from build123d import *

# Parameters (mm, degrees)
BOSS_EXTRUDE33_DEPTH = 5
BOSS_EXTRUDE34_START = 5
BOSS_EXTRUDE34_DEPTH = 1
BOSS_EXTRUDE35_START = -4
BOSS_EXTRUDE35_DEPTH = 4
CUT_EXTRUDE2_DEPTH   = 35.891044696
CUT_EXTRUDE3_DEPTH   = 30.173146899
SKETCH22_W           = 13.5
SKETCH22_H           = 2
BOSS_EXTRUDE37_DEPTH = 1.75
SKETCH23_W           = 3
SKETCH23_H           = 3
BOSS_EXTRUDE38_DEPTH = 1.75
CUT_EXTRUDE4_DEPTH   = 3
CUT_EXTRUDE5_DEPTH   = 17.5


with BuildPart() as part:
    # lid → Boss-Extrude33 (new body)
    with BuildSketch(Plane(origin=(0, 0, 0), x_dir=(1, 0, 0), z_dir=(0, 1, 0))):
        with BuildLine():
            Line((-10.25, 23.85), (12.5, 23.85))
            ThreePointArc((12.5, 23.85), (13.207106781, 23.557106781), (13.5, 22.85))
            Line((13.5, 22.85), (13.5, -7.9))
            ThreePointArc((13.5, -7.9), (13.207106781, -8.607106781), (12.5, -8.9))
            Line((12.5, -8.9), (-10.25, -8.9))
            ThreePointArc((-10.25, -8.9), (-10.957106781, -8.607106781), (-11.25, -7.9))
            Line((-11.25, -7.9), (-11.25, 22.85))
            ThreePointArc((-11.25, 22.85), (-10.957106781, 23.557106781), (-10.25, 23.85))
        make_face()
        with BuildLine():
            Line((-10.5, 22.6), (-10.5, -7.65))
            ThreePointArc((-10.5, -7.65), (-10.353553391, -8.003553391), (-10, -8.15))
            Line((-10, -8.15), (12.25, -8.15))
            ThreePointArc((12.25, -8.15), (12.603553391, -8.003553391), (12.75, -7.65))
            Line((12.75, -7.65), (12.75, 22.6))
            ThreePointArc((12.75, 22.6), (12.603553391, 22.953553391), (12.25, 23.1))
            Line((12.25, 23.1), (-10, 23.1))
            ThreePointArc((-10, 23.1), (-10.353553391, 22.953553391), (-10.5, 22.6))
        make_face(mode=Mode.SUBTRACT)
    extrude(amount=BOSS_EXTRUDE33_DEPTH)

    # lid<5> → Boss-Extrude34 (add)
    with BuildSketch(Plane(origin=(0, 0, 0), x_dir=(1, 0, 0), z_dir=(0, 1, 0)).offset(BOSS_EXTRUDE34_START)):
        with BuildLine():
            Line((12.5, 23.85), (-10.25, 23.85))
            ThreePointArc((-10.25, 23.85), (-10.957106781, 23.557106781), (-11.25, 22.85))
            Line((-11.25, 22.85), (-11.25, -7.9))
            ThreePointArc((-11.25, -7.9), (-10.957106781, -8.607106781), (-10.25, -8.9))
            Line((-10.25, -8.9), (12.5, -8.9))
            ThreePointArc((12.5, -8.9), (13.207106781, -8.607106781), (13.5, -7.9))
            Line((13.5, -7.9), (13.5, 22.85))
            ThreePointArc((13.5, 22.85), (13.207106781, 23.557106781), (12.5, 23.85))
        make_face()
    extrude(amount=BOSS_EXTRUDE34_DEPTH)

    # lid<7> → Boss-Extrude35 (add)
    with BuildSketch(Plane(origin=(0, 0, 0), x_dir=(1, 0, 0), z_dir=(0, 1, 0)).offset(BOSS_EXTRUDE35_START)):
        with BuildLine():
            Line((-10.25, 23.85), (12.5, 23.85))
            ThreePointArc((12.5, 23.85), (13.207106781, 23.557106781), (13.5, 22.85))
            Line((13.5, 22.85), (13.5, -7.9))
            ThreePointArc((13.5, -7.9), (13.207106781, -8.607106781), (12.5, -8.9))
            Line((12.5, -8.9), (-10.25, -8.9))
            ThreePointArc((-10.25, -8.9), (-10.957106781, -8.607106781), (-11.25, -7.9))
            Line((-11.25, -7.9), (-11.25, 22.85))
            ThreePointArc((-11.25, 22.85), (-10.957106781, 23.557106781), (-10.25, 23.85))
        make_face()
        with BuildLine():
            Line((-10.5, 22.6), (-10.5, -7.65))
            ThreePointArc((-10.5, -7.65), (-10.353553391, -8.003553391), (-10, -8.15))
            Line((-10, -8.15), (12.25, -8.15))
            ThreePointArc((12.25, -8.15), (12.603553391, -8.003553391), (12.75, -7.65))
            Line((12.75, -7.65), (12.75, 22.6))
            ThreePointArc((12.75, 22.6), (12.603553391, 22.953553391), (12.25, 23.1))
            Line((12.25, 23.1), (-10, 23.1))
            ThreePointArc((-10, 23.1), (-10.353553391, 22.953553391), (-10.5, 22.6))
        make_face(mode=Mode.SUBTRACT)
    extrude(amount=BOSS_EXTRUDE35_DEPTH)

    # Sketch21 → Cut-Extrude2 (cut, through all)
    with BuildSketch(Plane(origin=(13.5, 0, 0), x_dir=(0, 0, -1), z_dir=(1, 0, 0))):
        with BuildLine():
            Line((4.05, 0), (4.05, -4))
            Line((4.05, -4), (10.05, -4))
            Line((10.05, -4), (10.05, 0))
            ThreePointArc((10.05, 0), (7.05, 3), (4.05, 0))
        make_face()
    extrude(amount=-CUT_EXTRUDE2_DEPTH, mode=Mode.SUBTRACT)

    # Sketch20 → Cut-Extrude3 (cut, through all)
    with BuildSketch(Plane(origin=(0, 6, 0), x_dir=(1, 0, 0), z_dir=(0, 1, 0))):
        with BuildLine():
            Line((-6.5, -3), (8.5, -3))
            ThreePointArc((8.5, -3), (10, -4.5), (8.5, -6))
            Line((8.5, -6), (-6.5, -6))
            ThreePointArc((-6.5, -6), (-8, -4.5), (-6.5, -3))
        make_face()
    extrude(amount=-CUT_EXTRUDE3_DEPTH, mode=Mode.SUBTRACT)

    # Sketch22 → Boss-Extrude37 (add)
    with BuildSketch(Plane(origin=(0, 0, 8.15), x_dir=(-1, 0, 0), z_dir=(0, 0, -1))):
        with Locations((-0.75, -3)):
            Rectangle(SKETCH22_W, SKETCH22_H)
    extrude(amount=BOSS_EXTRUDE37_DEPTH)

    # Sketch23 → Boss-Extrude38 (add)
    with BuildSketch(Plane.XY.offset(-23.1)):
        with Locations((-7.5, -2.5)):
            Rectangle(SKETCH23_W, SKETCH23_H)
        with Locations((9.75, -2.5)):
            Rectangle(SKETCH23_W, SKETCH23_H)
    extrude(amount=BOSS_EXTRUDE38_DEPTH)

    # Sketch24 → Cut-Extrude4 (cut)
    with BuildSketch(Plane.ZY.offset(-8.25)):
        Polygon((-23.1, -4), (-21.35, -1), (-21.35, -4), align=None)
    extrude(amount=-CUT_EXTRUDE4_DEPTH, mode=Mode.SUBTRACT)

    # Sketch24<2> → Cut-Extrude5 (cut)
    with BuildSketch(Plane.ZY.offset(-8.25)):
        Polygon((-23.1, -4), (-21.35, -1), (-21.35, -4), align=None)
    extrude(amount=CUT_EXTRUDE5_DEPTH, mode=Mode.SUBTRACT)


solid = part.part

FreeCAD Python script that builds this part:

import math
import FreeCAD as App
import Part
import Sketcher

V = App.Vector
Q = App.Units.Quantity

doc = App.newDocument("Part")
body = doc.addObject("PartDesign::Body", "Body")

# Sketch on XZ plane
sketch1 = body.newObject("Sketcher::SketchObject", "Sketch")
sketch1.AttachmentSupport = (doc.getObject("XZ_Plane"), [""])
sketch1.MapMode = "FlatFace"
sketch1.addGeometry([
    Part.LineSegment(V(12.5, -23.85, 0), V(-10.25, -23.85, 0)),  # 0
    Part.ArcOfCircle(Part.Circle(V(-10.25, -22.85, 0), V(0, 0, 1), 1), math.radians(-180), math.radians(-90)),  # 1
    Part.LineSegment(V(-11.25, -22.85, 0), V(-11.25, 7.9, 0)),  # 2
    Part.ArcOfCircle(Part.Circle(V(-10.25, 7.9, 0), V(0, 0, 1), 1), math.radians(90), math.radians(180)),  # 3
    Part.LineSegment(V(-10.25, 8.9, 0), V(12.5, 8.9, 0)),  # 4
    Part.ArcOfCircle(Part.Circle(V(12.5, 7.9, 0), V(0, 0, 1), 1), math.radians(0), math.radians(90)),  # 5
    Part.LineSegment(V(13.5, 7.9, 0), V(13.5, -22.85, 0)),  # 6
    Part.ArcOfCircle(Part.Circle(V(12.5, -22.85, 0), V(0, 0, 1), 1), math.radians(-90), math.radians(0)),  # 7
    Part.ArcOfCircle(Part.Circle(V(-10, -22.6, 0), V(0, 0, 1), 0.5), math.radians(180), math.radians(270)),  # 8
    Part.LineSegment(V(-10, -23.1, 0), V(12.25, -23.1, 0)),  # 9
    Part.ArcOfCircle(Part.Circle(V(12.25, -22.6, 0), V(0, 0, 1), 0.5), math.radians(-90), math.radians(0)),  # 10
    Part.LineSegment(V(12.75, -22.6, 0), V(12.75, 7.65, 0)),  # 11
    Part.ArcOfCircle(Part.Circle(V(12.25, 7.65, 0), V(0, 0, 1), 0.5), math.radians(0), math.radians(90)),  # 12
    Part.LineSegment(V(12.25, 8.15, 0), V(-10, 8.15, 0)),  # 13
    Part.ArcOfCircle(Part.Circle(V(-10, 7.65, 0), V(0, 0, 1), 0.5), math.radians(90), math.radians(180)),  # 14
    Part.LineSegment(V(-10.5, 7.65, 0), V(-10.5, -22.6, 0)),  # 15
], False)
sketch1.addConstraint([
    Sketcher.Constraint("Tangent", 0, 2, 1, 2),
    Sketcher.Constraint("Tangent", 1, 1, 2, 1),
    Sketcher.Constraint("Tangent", 2, 2, 3, 2),
    Sketcher.Constraint("Tangent", 3, 1, 4, 1),
    Sketcher.Constraint("Tangent", 4, 2, 5, 2),
    Sketcher.Constraint("Tangent", 5, 1, 6, 1),
    Sketcher.Constraint("Tangent", 6, 2, 7, 2),
    Sketcher.Constraint("Tangent", 7, 1, 0, 1),
    Sketcher.Constraint("Tangent", 8, 2, 9, 1),
    Sketcher.Constraint("Tangent", 9, 2, 10, 1),
    Sketcher.Constraint("Tangent", 10, 2, 11, 1),
    Sketcher.Constraint("Tangent", 11, 2, 12, 1),
    Sketcher.Constraint("Tangent", 12, 2, 13, 1),
    Sketcher.Constraint("Tangent", 13, 2, 14, 1),
    Sketcher.Constraint("Tangent", 14, 2, 15, 1),
    Sketcher.Constraint("Tangent", 15, 2, 8, 1),
    Sketcher.Constraint("Horizontal", 0),
    Sketcher.Constraint("Vertical", 2),
    Sketcher.Constraint("Horizontal", 4),
    Sketcher.Constraint("Vertical", 6),
    Sketcher.Constraint("Horizontal", 9),
    Sketcher.Constraint("Vertical", 11),
    Sketcher.Constraint("Horizontal", 13),
    Sketcher.Constraint("Vertical", 15),
    Sketcher.Constraint("Equal", 1, 3),
    Sketcher.Constraint("Equal", 3, 5),
    Sketcher.Constraint("Equal", 5, 7),
    Sketcher.Constraint("Equal", 8, 10),
    Sketcher.Constraint("Equal", 10, 12),
    Sketcher.Constraint("Equal", 12, 14),
    Sketcher.Constraint("Radius", 1, Q("1 mm")),
    Sketcher.Constraint("Radius", 8, Q("0.5 mm")),
    Sketcher.Constraint("DistanceX", 8, 3, -1, 1, Q("10 mm")),
    Sketcher.Constraint("DistanceX", 0, 2, 0, 1, Q("22.75 mm")),
    Sketcher.Constraint("DistanceX", 9, 1, 9, 2, Q("22.25 mm")),
    Sketcher.Constraint("DistanceY", 2, 1, 2, 2, Q("30.75 mm")),
    Sketcher.Constraint("DistanceY", 11, 1, 11, 2, Q("30.25 mm")),
    Sketcher.Constraint("DistanceY", -1, 1, 3, 3, Q("7.9 mm")),
    Sketcher.Constraint("DistanceX", -1, 1, 5, 3, Q("12.5 mm")),
    Sketcher.Constraint("DistanceY", 8, 3, -1, 1, Q("22.6 mm")),
])
pad1 = body.newObject("PartDesign::Pad", "Pad")
pad1.Profile = sketch1
pad1.Length = 5
pad1.Reversed = True

# Sketch on XZ plane
sketch2 = body.newObject("Sketcher::SketchObject", "Sketch001")
sketch2.AttachmentSupport = (doc.getObject("XZ_Plane"), [""])
sketch2.MapMode = "FlatFace"
sketch2.AttachmentOffset = App.Placement(V(0, 0, -5), App.Rotation())
sketch2.addGeometry([
    Part.LineSegment(V(12.5, -23.9, 0), V(-10.2, -23.9, 0)),  # 0
    Part.ArcOfCircle(Part.Circle(V(-10.2, -22.8, 0), V(0, 0, 1), 1), math.radians(-180), math.radians(-90)),  # 1
    Part.LineSegment(V(-11.2, -22.9, 0), V(-11.2, 7.9, 0)),  # 2
    Part.ArcOfCircle(Part.Circle(V(-10.2, 7.9, 0), V(0, 0, 1), 1), math.radians(90), math.radians(180)),  # 3
    Part.LineSegment(V(-10.2, 8.9, 0), V(12.5, 8.9, 0)),  # 4
    Part.ArcOfCircle(Part.Circle(V(12.5, 7.9, 0), V(0, 0, 1), 1), math.radians(0), math.radians(90)),  # 5
    Part.LineSegment(V(13.5, 7.9, 0), V(13.5, -22.9, 0)),  # 6
    Part.ArcOfCircle(Part.Circle(V(12.5, -22.8, 0), V(0, 0, 1), 1), math.radians(-90), math.radians(0)),  # 7
], False)
sketch2.addConstraint([
    Sketcher.Constraint("Tangent", 0, 2, 1, 2),
    Sketcher.Constraint("Tangent", 1, 1, 2, 1),
    Sketcher.Constraint("Tangent", 2, 2, 3, 2),
    Sketcher.Constraint("Tangent", 3, 1, 4, 1),
    Sketcher.Constraint("Tangent", 4, 2, 5, 2),
    Sketcher.Constraint("Tangent", 5, 1, 6, 1),
    Sketcher.Constraint("Tangent", 6, 2, 7, 2),
    Sketcher.Constraint("Tangent", 7, 1, 0, 1),
    Sketcher.Constraint("Horizontal", 0),
    Sketcher.Constraint("Vertical", 2),
    Sketcher.Constraint("Horizontal", 4),
    Sketcher.Constraint("Vertical", 6),
    Sketcher.Constraint("Equal", 1, 3),
    Sketcher.Constraint("Equal", 3, 5),
    Sketcher.Constraint("Equal", 5, 7),
    Sketcher.Constraint("Radius", 1, Q("1 mm")),
    Sketcher.Constraint("DistanceX", 0, 2, 0, 1, Q("22.75 mm")),
    Sketcher.Constraint("DistanceY", 2, 1, 2, 2, Q("30.75 mm")),
    Sketcher.Constraint("DistanceY", -1, 1, 3, 3, Q("7.9 mm")),
    Sketcher.Constraint("DistanceX", -1, 1, 5, 3, Q("12.5 mm")),
])
pad2 = body.newObject("PartDesign::Pad", "Pad001")
pad2.Profile = sketch2
pad2.Length = 1
pad2.Reversed = True

# Sketch on XZ plane
sketch3 = body.newObject("Sketcher::SketchObject", "Sketch002")
sketch3.AttachmentSupport = (doc.getObject("XZ_Plane"), [""])
sketch3.MapMode = "FlatFace"
sketch3.AttachmentOffset = App.Placement(V(0, 0, 4), App.Rotation())
sketch3.addGeometry([
    Part.LineSegment(V(12.5, -23.85, 0), V(-10.25, -23.85, 0)),  # 0
    Part.ArcOfCircle(Part.Circle(V(-10.25, -22.85, 0), V(0, 0, 1), 1), math.radians(-180), math.radians(-90)),  # 1
    Part.LineSegment(V(-11.25, -22.85, 0), V(-11.25, 7.9, 0)),  # 2
    Part.ArcOfCircle(Part.Circle(V(-10.25, 7.9, 0), V(0, 0, 1), 1), math.radians(90), math.radians(180)),  # 3
    Part.LineSegment(V(-10.25, 8.9, 0), V(12.5, 8.9, 0)),  # 4
    Part.ArcOfCircle(Part.Circle(V(12.5, 7.9, 0), V(0, 0, 1), 1), math.radians(0), math.radians(90)),  # 5
    Part.LineSegment(V(13.5, 7.9, 0), V(13.5, -22.85, 0)),  # 6
    Part.ArcOfCircle(Part.Circle(V(12.5, -22.85, 0), V(0, 0, 1), 1), math.radians(-90), math.radians(0)),  # 7
    Part.ArcOfCircle(Part.Circle(V(-10, -22.6, 0), V(0, 0, 1), 0.5), math.radians(180), math.radians(270)),  # 8
    Part.LineSegment(V(-10, -23.1, 0), V(12.25, -23.1, 0)),  # 9
    Part.ArcOfCircle(Part.Circle(V(12.25, -22.6, 0), V(0, 0, 1), 0.5), math.radians(-90), math.radians(0)),  # 10
    Part.LineSegment(V(12.75, -22.6, 0), V(12.75, 7.65, 0)),  # 11
    Part.ArcOfCircle(Part.Circle(V(12.25, 7.65, 0), V(0, 0, 1), 0.5), math.radians(0), math.radians(90)),  # 12
    Part.LineSegment(V(12.25, 8.15, 0), V(-10, 8.15, 0)),  # 13
    Part.ArcOfCircle(Part.Circle(V(-10, 7.65, 0), V(0, 0, 1), 0.5), math.radians(90), math.radians(180)),  # 14
    Part.LineSegment(V(-10.5, 7.65, 0), V(-10.5, -22.6, 0)),  # 15
], False)
sketch3.addConstraint([
    Sketcher.Constraint("Tangent", 0, 2, 1, 2),
    Sketcher.Constraint("Tangent", 1, 1, 2, 1),
    Sketcher.Constraint("Tangent", 2, 2, 3, 2),
    Sketcher.Constraint("Tangent", 3, 1, 4, 1),
    Sketcher.Constraint("Tangent", 4, 2, 5, 2),
    Sketcher.Constraint("Tangent", 5, 1, 6, 1),
    Sketcher.Constraint("Tangent", 6, 2, 7, 2),
    Sketcher.Constraint("Tangent", 7, 1, 0, 1),
    Sketcher.Constraint("Tangent", 8, 2, 9, 1),
    Sketcher.Constraint("Tangent", 9, 2, 10, 1),
    Sketcher.Constraint("Tangent", 10, 2, 11, 1),
    Sketcher.Constraint("Tangent", 11, 2, 12, 1),
    Sketcher.Constraint("Tangent", 12, 2, 13, 1),
    Sketcher.Constraint("Tangent", 13, 2, 14, 1),
    Sketcher.Constraint("Tangent", 14, 2, 15, 1),
    Sketcher.Constraint("Tangent", 15, 2, 8, 1),
    Sketcher.Constraint("Horizontal", 0),
    Sketcher.Constraint("Vertical", 2),
    Sketcher.Constraint("Horizontal", 4),
    Sketcher.Constraint("Vertical", 6),
    Sketcher.Constraint("Horizontal", 9),
    Sketcher.Constraint("Vertical", 11),
    Sketcher.Constraint("Horizontal", 13),
    Sketcher.Constraint("Vertical", 15),
    Sketcher.Constraint("Equal", 1, 3),
    Sketcher.Constraint("Equal", 3, 5),
    Sketcher.Constraint("Equal", 5, 7),
    Sketcher.Constraint("Equal", 8, 10),
    Sketcher.Constraint("Equal", 10, 12),
    Sketcher.Constraint("Equal", 12, 14),
    Sketcher.Constraint("Radius", 1, Q("1 mm")),
    Sketcher.Constraint("Radius", 8, Q("0.5 mm")),
    Sketcher.Constraint("DistanceX", 8, 3, -1, 1, Q("10 mm")),
    Sketcher.Constraint("DistanceX", 0, 2, 0, 1, Q("22.75 mm")),
    Sketcher.Constraint("DistanceX", 9, 1, 9, 2, Q("22.25 mm")),
    Sketcher.Constraint("DistanceY", 2, 1, 2, 2, Q("30.75 mm")),
    Sketcher.Constraint("DistanceY", 11, 1, 11, 2, Q("30.25 mm")),
    Sketcher.Constraint("DistanceY", -1, 1, 3, 3, Q("7.9 mm")),
    Sketcher.Constraint("DistanceX", -1, 1, 5, 3, Q("12.5 mm")),
    Sketcher.Constraint("DistanceY", 8, 3, -1, 1, Q("22.6 mm")),
])
pad3 = body.newObject("PartDesign::Pad", "Pad002")
pad3.Profile = sketch3
pad3.Length = 4
pad3.Reversed = True

# Sketch on YZ plane
sketch4 = body.newObject("Sketcher::SketchObject", "Sketch003")
sketch4.AttachmentSupport = (doc.getObject("YZ_Plane"), [""])
sketch4.MapMode = "FlatFace"
sketch4.AttachmentOffset = App.Placement(V(0, 0, 13.5), App.Rotation())
sketch4.addGeometry([
    Part.LineSegment(V(0, -4, 0), V(-4, -4, 0)),
    Part.LineSegment(V(-4, -4, 0), V(-4, -10.1, 0)),
    Part.LineSegment(V(-4, -10.1, 0), V(0, -10.1, 0)),
    Part.ArcOfCircle(Part.Circle(V(0, -7, 0), V(0, 0, 1), 3), math.radians(-90), math.radians(90)),
], False)
sketch4.addConstraint([
    Sketcher.Constraint("Coincident", 0, 2, 1, 1),
    Sketcher.Constraint("Coincident", 1, 2, 2, 1),
    Sketcher.Constraint("Tangent", 2, 2, 3, 1),
    Sketcher.Constraint("Tangent", 3, 2, 0, 1),
    Sketcher.Constraint("Horizontal", 0),
    Sketcher.Constraint("Vertical", 1),
    Sketcher.Constraint("Horizontal", 2),
    Sketcher.Constraint("PointOnObject", 3, 3, -2),
    Sketcher.Constraint("Radius", 3, Q("3 mm")),
    Sketcher.Constraint("DistanceX", 0, 2, 0, 1, Q("4 mm")),
    Sketcher.Constraint("DistanceY", 3, 3, -1, 1, Q("7.05 mm")),
])
pocket1 = body.newObject("PartDesign::Pocket", "Pocket")
pocket1.Profile = sketch4
pocket1.Type = "ThroughAll"

# Sketch on XZ plane
sketch5 = body.newObject("Sketcher::SketchObject", "Sketch004")
sketch5.AttachmentSupport = (doc.getObject("XZ_Plane"), [""])
sketch5.MapMode = "FlatFace"
sketch5.AttachmentOffset = App.Placement(V(0, 0, -6), App.Rotation())
sketch5.addGeometry([
    Part.LineSegment(V(8.5, 3, 0), V(-6.5, 3, 0)),
    Part.ArcOfCircle(Part.Circle(V(-6.5, 4.5, 0), V(0, 0, 1), 1.5), math.radians(90), math.radians(270)),
    Part.LineSegment(V(-6.5, 6, 0), V(8.5, 6, 0)),
    Part.ArcOfCircle(Part.Circle(V(8.5, 4.5, 0), V(0, 0, 1), 1.5), math.radians(-90), math.radians(90)),
], False)
sketch5.addConstraint([
    Sketcher.Constraint("Tangent", 0, 2, 1, 2),
    Sketcher.Constraint("Tangent", 1, 1, 2, 1),
    Sketcher.Constraint("Tangent", 2, 2, 3, 2),
    Sketcher.Constraint("Tangent", 3, 1, 0, 1),
    Sketcher.Constraint("Horizontal", 0),
    Sketcher.Constraint("Horizontal", 2),
    Sketcher.Constraint("Radius", 1, Q("1.5 mm")),
    Sketcher.Constraint("DistanceX", 0, 2, 0, 1, Q("15 mm")),
    Sketcher.Constraint("DistanceY", -1, 1, 0, 2, Q("3 mm")),
    Sketcher.Constraint("DistanceX", 1, 3, -1, 1, Q("6.5 mm")),
])
pocket2 = body.newObject("PartDesign::Pocket", "Pocket001")
pocket2.Profile = sketch5
pocket2.Type = "ThroughAll"
pocket2.Reversed = True

# Sketch on XY plane
sketch6 = body.newObject("Sketcher::SketchObject", "Sketch005")
sketch6.AttachmentSupport = (doc.getObject("XY_Plane"), [""])
sketch6.MapMode = "FlatFace"
sketch6.AttachmentOffset = App.Placement(V(0, 0, 8.15), App.Rotation())
sketch6.addGeometry([
    Part.LineSegment(V(7.5, -2, 0), V(7.5, -4, 0)),
    Part.LineSegment(V(7.5, -4, 0), V(-6, -4, 0)),
    Part.LineSegment(V(-6, -4, 0), V(-6, -2, 0)),
    Part.LineSegment(V(-6, -2, 0), V(7.5, -2, 0)),
], False)
sketch6.addConstraint([
    Sketcher.Constraint("Coincident", 0, 2, 1, 1),
    Sketcher.Constraint("Coincident", 1, 2, 2, 1),
    Sketcher.Constraint("Coincident", 2, 2, 3, 1),
    Sketcher.Constraint("Coincident", 3, 2, 0, 1),
    Sketcher.Constraint("Vertical", 0),
    Sketcher.Constraint("Horizontal", 1),
    Sketcher.Constraint("Vertical", 2),
    Sketcher.Constraint("Horizontal", 3),
    Sketcher.Constraint("DistanceY", 0, 2, 0, 1, Q("2 mm")),
    Sketcher.Constraint("DistanceX", 1, 2, 1, 1, Q("13.5 mm")),
    Sketcher.Constraint("DistanceY", 0, 2, -1, 1, Q("4 mm")),
    Sketcher.Constraint("DistanceX", 1, 2, -1, 1, Q("6 mm")),
])
pad4 = body.newObject("PartDesign::Pad", "Pad003")
pad4.Profile = sketch6
pad4.Length = 1.75
pad4.Reversed = True

# Sketch on XY plane
sketch7 = body.newObject("Sketcher::SketchObject", "Sketch006")
sketch7.AttachmentSupport = (doc.getObject("XY_Plane"), [""])
sketch7.MapMode = "FlatFace"
sketch7.AttachmentOffset = App.Placement(V(0, 0, -23.1), App.Rotation())
sketch7.addGeometry([
    Part.LineSegment(V(-9, -1, 0), V(-9, -4, 0)),  # 0
    Part.LineSegment(V(-9, -4, 0), V(-6, -4, 0)),  # 1
    Part.LineSegment(V(-6, -4, 0), V(-6, -1, 0)),  # 2
    Part.LineSegment(V(-6, -1, 0), V(-9, -1, 0)),  # 3
    Part.LineSegment(V(8.2, -1, 0), V(8.2, -4, 0)),  # 4
    Part.LineSegment(V(8.2, -4, 0), V(11.2, -4, 0)),  # 5
    Part.LineSegment(V(11.2, -4, 0), V(11.2, -1, 0)),  # 6
    Part.LineSegment(V(11.2, -1, 0), V(8.2, -1, 0)),  # 7
], False)
sketch7.addConstraint([
    Sketcher.Constraint("Coincident", 0, 2, 1, 1),
    Sketcher.Constraint("Coincident", 1, 2, 2, 1),
    Sketcher.Constraint("Coincident", 2, 2, 3, 1),
    Sketcher.Constraint("Coincident", 3, 2, 0, 1),
    Sketcher.Constraint("Coincident", 4, 2, 5, 1),
    Sketcher.Constraint("Coincident", 5, 2, 6, 1),
    Sketcher.Constraint("Coincident", 6, 2, 7, 1),
    Sketcher.Constraint("Coincident", 7, 2, 4, 1),
    Sketcher.Constraint("Vertical", 0),
    Sketcher.Constraint("Horizontal", 1),
    Sketcher.Constraint("Vertical", 2),
    Sketcher.Constraint("Horizontal", 3),
    Sketcher.Constraint("Vertical", 4),
    Sketcher.Constraint("Horizontal", 5),
    Sketcher.Constraint("Vertical", 6),
    Sketcher.Constraint("Horizontal", 7),
    Sketcher.Constraint("Horizontal", 1, 2, 4, 2),
    Sketcher.Constraint("Horizontal", 3, 2, 6, 2),
    Sketcher.Constraint("Equal", 3, 5),
    Sketcher.Constraint("Equal", 7, 0),
    Sketcher.Constraint("DistanceX", 1, 1, 1, 2, Q("3 mm")),
    Sketcher.Constraint("DistanceX", 0, 2, -1, 1, Q("9 mm")),
    Sketcher.Constraint("DistanceY", 0, 2, -1, 1, Q("4 mm")),
    Sketcher.Constraint("DistanceX", -1, 1, 4, 2, Q("8.25 mm")),
])
pad5 = body.newObject("PartDesign::Pad", "Pad004")
pad5.Profile = sketch7
pad5.Length = 1.75

# Sketch on YZ plane
sketch8 = body.newObject("Sketcher::SketchObject", "Sketch007")
sketch8.AttachmentSupport = (doc.getObject("YZ_Plane"), [""])
sketch8.MapMode = "FlatFace"
sketch8.AttachmentOffset = App.Placement(V(0, 0, 8.25), App.Rotation())
sketch8.addGeometry([
    Part.LineSegment(V(-1, -21.4, 0), V(-4, -23.1, 0)),
    Part.LineSegment(V(-4, -23.1, 0), V(-4, -21.4, 0)),
    Part.LineSegment(V(-4, -21.4, 0), V(-1, -21.4, 0)),
], False)
sketch8.addConstraint([
    Sketcher.Constraint("Coincident", 0, 2, 1, 1),
    Sketcher.Constraint("Coincident", 1, 2, 2, 1),
    Sketcher.Constraint("Coincident", 2, 2, 0, 1),
    Sketcher.Constraint("Vertical", 1),
    Sketcher.Constraint("Horizontal", 2),
    Sketcher.Constraint("DistanceX", 2, 1, 2, 2, Q("3 mm")),
    Sketcher.Constraint("DistanceX", 0, 2, -1, 1, Q("4 mm")),
    Sketcher.Constraint("DistanceY", 1, 1, 1, 2, Q("1.75 mm")),
    Sketcher.Constraint("DistanceY", 0, 2, -1, 1, Q("23.1 mm")),
])
pocket3 = body.newObject("PartDesign::Pocket", "Pocket002")
pocket3.Profile = sketch8
pocket3.Length = 3
pocket3.Reversed = True

# Sketch on YZ plane
sketch9 = body.newObject("Sketcher::SketchObject", "Sketch008")
sketch9.AttachmentSupport = (doc.getObject("YZ_Plane"), [""])
sketch9.MapMode = "FlatFace"
sketch9.AttachmentOffset = App.Placement(V(0, 0, 8.25), App.Rotation())
sketch9.addGeometry([
    Part.LineSegment(V(-1, -21.4, 0), V(-4, -23.1, 0)),
    Part.LineSegment(V(-4, -23.1, 0), V(-4, -21.4, 0)),
    Part.LineSegment(V(-4, -21.4, 0), V(-1, -21.4, 0)),
], False)
sketch9.addConstraint([
    Sketcher.Constraint("Coincident", 0, 2, 1, 1),
    Sketcher.Constraint("Coincident", 1, 2, 2, 1),
    Sketcher.Constraint("Coincident", 2, 2, 0, 1),
    Sketcher.Constraint("Vertical", 1),
    Sketcher.Constraint("Horizontal", 2),
    Sketcher.Constraint("DistanceX", 2, 1, 2, 2, Q("3 mm")),
    Sketcher.Constraint("DistanceX", 0, 2, -1, 1, Q("4 mm")),
    Sketcher.Constraint("DistanceY", 1, 1, 1, 2, Q("1.75 mm")),
    Sketcher.Constraint("DistanceY", 0, 2, -1, 1, Q("23.1 mm")),
])
pocket4 = body.newObject("PartDesign::Pocket", "Pocket003")
pocket4.Profile = sketch9
pocket4.Length = 17.5

doc.recompute()
